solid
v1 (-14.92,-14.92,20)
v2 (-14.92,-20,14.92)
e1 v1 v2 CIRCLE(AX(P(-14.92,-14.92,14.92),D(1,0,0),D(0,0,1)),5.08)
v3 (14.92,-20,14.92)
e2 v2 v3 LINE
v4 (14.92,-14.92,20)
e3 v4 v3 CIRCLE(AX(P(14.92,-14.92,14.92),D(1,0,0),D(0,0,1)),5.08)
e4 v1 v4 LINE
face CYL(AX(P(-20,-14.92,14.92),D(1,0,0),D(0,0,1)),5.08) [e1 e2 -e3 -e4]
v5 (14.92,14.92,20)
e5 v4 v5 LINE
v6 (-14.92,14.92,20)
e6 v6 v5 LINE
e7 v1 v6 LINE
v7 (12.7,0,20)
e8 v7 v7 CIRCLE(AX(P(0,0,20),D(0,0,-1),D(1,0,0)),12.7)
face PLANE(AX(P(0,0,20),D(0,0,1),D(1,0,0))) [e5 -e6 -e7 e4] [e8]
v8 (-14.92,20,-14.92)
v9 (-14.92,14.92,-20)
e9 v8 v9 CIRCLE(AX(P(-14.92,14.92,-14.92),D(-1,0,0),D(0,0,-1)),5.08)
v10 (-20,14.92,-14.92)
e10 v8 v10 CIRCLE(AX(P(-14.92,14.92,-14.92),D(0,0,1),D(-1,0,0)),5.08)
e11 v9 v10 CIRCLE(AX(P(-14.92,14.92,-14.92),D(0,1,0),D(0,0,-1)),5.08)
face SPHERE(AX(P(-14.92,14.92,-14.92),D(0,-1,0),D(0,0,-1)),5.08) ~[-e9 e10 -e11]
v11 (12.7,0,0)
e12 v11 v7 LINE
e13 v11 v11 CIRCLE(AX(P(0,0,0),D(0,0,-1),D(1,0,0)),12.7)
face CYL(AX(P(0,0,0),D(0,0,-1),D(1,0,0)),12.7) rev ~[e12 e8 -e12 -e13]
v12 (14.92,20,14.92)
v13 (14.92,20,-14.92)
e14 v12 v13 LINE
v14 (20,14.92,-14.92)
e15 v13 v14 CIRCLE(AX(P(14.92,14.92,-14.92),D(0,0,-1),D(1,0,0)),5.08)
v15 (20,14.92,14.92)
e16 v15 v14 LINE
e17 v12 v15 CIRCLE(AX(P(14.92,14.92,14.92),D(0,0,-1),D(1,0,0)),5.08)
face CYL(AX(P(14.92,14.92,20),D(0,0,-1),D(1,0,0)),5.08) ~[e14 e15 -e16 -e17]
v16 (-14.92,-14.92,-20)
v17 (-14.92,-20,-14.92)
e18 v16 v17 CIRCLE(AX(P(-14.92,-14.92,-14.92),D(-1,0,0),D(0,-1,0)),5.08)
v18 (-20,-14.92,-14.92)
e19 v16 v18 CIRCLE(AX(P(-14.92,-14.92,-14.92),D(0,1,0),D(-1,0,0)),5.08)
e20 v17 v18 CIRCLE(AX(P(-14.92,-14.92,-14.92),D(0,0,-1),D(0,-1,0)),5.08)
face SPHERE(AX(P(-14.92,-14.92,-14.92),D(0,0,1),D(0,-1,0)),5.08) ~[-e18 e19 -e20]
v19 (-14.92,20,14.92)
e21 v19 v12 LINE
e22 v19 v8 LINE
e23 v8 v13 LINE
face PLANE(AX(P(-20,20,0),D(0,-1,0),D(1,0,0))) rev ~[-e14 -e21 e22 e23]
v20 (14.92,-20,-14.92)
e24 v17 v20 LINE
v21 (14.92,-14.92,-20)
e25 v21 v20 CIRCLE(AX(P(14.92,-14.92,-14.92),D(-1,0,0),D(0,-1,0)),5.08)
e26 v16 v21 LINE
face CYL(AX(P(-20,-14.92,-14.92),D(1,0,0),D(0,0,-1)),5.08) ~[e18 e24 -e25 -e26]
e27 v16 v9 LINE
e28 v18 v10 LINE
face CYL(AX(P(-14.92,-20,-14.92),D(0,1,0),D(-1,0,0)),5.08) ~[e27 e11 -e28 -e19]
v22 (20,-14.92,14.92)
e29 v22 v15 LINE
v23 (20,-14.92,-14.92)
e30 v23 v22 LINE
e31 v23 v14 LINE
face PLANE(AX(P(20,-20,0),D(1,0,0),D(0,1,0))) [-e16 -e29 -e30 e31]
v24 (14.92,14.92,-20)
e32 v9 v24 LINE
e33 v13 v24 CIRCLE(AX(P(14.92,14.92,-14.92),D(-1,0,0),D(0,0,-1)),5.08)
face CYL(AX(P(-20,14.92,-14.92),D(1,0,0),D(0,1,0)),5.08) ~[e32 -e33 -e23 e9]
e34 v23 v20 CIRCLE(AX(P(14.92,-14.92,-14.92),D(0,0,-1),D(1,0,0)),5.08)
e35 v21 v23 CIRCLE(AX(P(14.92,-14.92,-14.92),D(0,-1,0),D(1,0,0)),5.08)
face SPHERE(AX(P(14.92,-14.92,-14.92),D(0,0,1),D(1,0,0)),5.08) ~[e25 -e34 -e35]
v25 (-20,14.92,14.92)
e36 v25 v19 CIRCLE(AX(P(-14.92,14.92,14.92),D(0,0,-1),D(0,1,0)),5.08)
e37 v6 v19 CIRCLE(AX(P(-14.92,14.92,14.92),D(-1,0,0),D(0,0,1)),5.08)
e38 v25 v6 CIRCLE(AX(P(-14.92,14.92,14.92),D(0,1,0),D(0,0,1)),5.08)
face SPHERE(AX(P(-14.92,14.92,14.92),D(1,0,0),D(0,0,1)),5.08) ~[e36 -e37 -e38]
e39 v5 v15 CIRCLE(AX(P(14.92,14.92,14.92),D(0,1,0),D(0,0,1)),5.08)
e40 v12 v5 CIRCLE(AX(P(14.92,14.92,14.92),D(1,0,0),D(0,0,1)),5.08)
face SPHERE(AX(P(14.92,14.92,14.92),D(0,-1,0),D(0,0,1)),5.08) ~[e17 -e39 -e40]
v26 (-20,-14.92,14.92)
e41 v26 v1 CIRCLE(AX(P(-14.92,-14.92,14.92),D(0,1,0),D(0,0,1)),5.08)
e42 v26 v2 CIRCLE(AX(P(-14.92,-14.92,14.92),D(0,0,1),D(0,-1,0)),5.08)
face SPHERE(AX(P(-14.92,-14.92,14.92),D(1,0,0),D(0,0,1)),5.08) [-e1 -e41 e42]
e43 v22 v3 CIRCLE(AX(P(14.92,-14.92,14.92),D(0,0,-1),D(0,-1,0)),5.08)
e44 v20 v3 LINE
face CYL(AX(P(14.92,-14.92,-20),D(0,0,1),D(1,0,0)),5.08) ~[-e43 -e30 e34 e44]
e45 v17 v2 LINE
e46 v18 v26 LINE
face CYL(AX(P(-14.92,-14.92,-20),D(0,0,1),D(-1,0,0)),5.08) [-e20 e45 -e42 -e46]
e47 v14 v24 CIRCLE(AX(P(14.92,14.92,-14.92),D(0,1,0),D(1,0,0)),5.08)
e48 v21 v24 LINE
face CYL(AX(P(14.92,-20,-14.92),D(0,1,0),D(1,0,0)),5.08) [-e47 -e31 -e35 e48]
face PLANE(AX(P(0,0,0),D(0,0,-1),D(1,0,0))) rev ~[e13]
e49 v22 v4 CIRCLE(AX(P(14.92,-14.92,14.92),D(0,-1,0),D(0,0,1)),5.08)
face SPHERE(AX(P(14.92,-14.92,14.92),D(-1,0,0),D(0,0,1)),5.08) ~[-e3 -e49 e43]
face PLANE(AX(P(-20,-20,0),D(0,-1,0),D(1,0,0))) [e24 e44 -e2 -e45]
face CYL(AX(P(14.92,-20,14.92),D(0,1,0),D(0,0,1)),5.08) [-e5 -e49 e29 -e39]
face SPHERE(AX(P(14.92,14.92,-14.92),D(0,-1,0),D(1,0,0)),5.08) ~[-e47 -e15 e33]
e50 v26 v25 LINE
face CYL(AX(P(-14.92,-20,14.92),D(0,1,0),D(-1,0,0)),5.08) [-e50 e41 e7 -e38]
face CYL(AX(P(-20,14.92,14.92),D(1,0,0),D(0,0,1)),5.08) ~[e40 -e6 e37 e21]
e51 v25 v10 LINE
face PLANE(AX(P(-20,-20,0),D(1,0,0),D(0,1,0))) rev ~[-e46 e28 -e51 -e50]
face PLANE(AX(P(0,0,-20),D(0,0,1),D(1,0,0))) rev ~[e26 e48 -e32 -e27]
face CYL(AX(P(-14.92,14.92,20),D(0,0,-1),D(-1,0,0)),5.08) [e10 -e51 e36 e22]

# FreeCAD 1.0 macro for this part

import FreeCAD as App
import Part
import Sketcher
from FreeCAD import Vector
Q = App.Units.Quantity


def add_polygon(sketch, points):
    """Adds a closed chain of lines whose ends are joined by coincident constraints."""
    first, n = sketch.GeometryCount, len(points)
    for a, b in zip(points, points[1:] + points[:1]):
        sketch.addGeometry(Part.LineSegment(App.Vector(*a, 0), App.Vector(*b, 0)), False)
    for i in range(n):
        sketch.addConstraint(Sketcher.Constraint("Coincident", first + i, 2, first + (i + 1) % n, 1))

doc = App.newDocument("Part")
body = doc.addObject("PartDesign::Body", "Body")

# Sketch on XY plane
sketch1 = body.newObject("Sketcher::SketchObject", "Sketch")
sketch1.AttachmentSupport = (doc.getObject("XY_Plane"), [""])
sketch1.MapMode = "FlatFace"
add_polygon(sketch1, [(-20, 20), (-20, -20), (20, -20), (20, 20)])  # lines 0-3
sketch1.addConstraint(Sketcher.Constraint("Vertical", 0))
sketch1.addConstraint(Sketcher.Constraint("Horizontal", 1))
sketch1.addConstraint(Sketcher.Constraint("Vertical", 2))
sketch1.addConstraint(Sketcher.Constraint("Horizontal", 3))
sketch1.addConstraint(Sketcher.Constraint("Symmetric", 0, 2, 2, 2, -1, 1))
sketch1.addConstraint(Sketcher.Constraint("Equal", 3, 0))
sketch1.addConstraint(Sketcher.Constraint("DistanceX", 1, 1, 1, 2, Q("40 mm")))
pad1 = body.newObject("PartDesign::Pad", "Pad")
pad1.Profile = sketch1
pad1.Length = 40
pad1.Midplane = True
doc.recompute()

fillet = body.newObject("PartDesign::Fillet", "Fillet")
fillet.Base = (pad1, ["Edge1"])
fillet.UseAllEdges = True
fillet.Radius = 5.08

# Sketch on XY plane
sketch2 = body.newObject("Sketcher::SketchObject", "Sketch001")
sketch2.AttachmentSupport = (doc.getObject("XY_Plane"), [""])
sketch2.MapMode = "FlatFace"
sketch2.addGeometry(Part.Circle(Vector(0, 0, 0), Vector(0, 0, 1), 13), False)
sketch2.addConstraint(Sketcher.Constraint("Coincident", 0, 3, -1, 1))
sketch2.addConstraint(Sketcher.Constraint("Diameter", 0, Q("25.4 mm")))
pocket1 = body.newObject("PartDesign::Pocket", "Pocket")
pocket1.Profile = sketch2
pocket1.Type = "ThroughAll"
pocket1.Reversed = True

doc.recompute()
